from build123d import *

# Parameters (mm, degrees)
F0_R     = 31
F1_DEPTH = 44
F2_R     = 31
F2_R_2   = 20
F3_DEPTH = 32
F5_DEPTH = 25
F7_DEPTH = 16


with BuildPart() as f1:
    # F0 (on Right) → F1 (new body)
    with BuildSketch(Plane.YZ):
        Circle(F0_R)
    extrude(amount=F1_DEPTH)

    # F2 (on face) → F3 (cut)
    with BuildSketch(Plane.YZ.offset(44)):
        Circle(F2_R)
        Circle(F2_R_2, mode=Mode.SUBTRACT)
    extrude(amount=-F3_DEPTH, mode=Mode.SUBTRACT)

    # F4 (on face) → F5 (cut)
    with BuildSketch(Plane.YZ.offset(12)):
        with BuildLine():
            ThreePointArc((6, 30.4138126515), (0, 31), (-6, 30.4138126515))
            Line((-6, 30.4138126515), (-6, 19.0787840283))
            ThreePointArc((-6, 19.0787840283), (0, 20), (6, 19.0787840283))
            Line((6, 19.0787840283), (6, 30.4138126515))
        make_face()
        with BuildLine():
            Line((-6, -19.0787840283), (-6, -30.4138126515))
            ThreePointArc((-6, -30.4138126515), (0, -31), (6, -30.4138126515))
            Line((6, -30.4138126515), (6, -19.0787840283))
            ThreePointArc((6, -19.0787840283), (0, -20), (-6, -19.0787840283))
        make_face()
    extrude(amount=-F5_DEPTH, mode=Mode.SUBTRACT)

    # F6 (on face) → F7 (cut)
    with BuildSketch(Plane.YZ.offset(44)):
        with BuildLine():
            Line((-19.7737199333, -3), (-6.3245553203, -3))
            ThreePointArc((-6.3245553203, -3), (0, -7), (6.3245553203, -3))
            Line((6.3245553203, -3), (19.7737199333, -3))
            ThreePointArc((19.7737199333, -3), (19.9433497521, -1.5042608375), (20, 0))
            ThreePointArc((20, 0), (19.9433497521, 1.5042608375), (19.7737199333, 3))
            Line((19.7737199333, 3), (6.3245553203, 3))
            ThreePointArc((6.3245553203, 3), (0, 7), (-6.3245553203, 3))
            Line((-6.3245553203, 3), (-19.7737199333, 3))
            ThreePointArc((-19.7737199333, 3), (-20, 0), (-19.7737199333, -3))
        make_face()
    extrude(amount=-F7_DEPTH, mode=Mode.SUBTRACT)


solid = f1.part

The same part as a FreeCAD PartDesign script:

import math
import FreeCAD as App
import Part
import Sketcher

V = App.Vector
Q = App.Units.Quantity

doc = App.newDocument("Part")
params = doc.addObject("Spreadsheet::Sheet", "Params")
for row, (alias, value) in enumerate([
    ("sketch1_diameter", "62 mm"),
    ("pad1_length", "44 mm"),
    ("sketch2_diameter", "62 mm"),
    ("sketch2_diameter2", "40 mm"),
    ("pocket1_length", "32 mm"),
    ("sketch3_radius", "31 mm"),
    ("sketch3_radius2", "20 mm"),
    ("pocket2_length", "25 mm"),
    ("sketch4_radius", "7 mm"),
    ("sketch4_radius2", "20 mm"),
    ("pocket3_length", "16 mm"),
], start=1):
    params.set(f"A{row}", alias)
    params.set(f"B{row}", "=" + value)
    params.setAlias(f"B{row}", alias)

body = doc.addObject("PartDesign::Body", "Body")

# Sketch on YZ plane
sketch1 = doc.addObject("Sketcher::SketchObject", "Sketch")
body.addObject(sketch1)
sketch1.AttachmentSupport = (doc.YZ_Plane, [""])
sketch1.MapMode = "FlatFace"
sketch1.addGeometry(Part.Circle(V(0, 0, 0), V(0, 0, 1), 31), False)
sketch1.addConstraint([
    Sketcher.Constraint("Coincident", 0, 3, -1, 1),
    Sketcher.Constraint("Diameter", 0, Q("62 mm")),
])
sketch1.setExpression("Constraints[1]", "Params.sketch1_diameter")
pad1 = doc.addObject("PartDesign::Pad", "Pad")
body.addObject(pad1)
pad1.Profile = sketch1
pad1.setExpression("Length", "Params.pad1_length")

# Sketch on YZ plane
sketch2 = doc.addObject("Sketcher::SketchObject", "Sketch001")
body.addObject(sketch2)
sketch2.AttachmentSupport = (doc.YZ_Plane, [""])
sketch2.MapMode = "FlatFace"
sketch2.AttachmentOffset = App.Placement(V(0, 0, 44), App.Rotation())
sketch2.addGeometry([
    Part.Circle(V(0, 0, 0), V(0, 0, 1), 31),
    Part.Circle(V(0, 0, 0), V(0, 0, 1), 20),
], False)
sketch2.addConstraint([
    Sketcher.Constraint("Coincident", 0, 3, -1, 1),
    Sketcher.Constraint("Coincident", 1, 3, -1, 1),
    Sketcher.Constraint("Diameter", 0, Q("62 mm")),
    Sketcher.Constraint("Diameter", 1, Q("40 mm")),
])
sketch2.setExpression("Constraints[2]", "Params.sketch2_diameter")
sketch2.setExpression("Constraints[3]", "Params.sketch2_diameter2")
pocket1 = doc.addObject("PartDesign::Pocket", "Pocket")
body.addObject(pocket1)
pocket1.Profile = sketch2
pocket1.setExpression("Length", "Params.pocket1_length")

# Sketch on YZ plane
sketch3 = doc.addObject("Sketcher::SketchObject", "Sketch002")
body.addObject(sketch3)
sketch3.AttachmentSupport = (doc.YZ_Plane, [""])
sketch3.MapMode = "FlatFace"
sketch3.AttachmentOffset = App.Placement(V(0, 0, 12), App.Rotation())
sketch3.addGeometry([
    Part.ArcOfCircle(Part.Circle(V(0, 0, 0), V(0, 0, 1), 31), math.radians(79), math.radians(101)),  # 0
    Part.LineSegment(V(-6, 30, 0), V(-6, 19, 0)),  # 1
    Part.ArcOfCircle(Part.Circle(V(0, 0, 0), V(0, 0, 1), 20), math.radians(73), math.radians(107)),  # 2
    Part.LineSegment(V(6, 19, 0), V(6, 30, 0)),  # 3
    Part.LineSegment(V(-6, -19, 0), V(-6, -30, 0)),  # 4
    Part.ArcOfCircle(Part.Circle(V(0, 0, 0), V(0, 0, 1), 31), math.radians(-101), math.radians(-79)),  # 5
    Part.LineSegment(V(6, -30, 0), V(6, -19, 0)),  # 6
    Part.ArcOfCircle(Part.Circle(V(0, 0, 0), V(0, 0, 1), 20), math.radians(-107), math.radians(-73)),  # 7
], False)
sketch3.addConstraint([
    Sketcher.Constraint("Coincident", 0, 2, 1, 1),
    Sketcher.Constraint("Coincident", 1, 2, 2, 2),
    Sketcher.Constraint("Coincident", 2, 1, 3, 1),
    Sketcher.Constraint("Coincident", 3, 2, 0, 1),
    Sketcher.Constraint("Coincident", 4, 2, 5, 1),
    Sketcher.Constraint("Coincident", 5, 2, 6, 1),
    Sketcher.Constraint("Coincident", 6, 2, 7, 2),
    Sketcher.Constraint("Coincident", 7, 1, 4, 1),
    Sketcher.Constraint("Vertical", 1),
    Sketcher.Constraint("Vertical", 3),
    Sketcher.Constraint("Vertical", 4),
    Sketcher.Constraint("Vertical", 6),
    Sketcher.Constraint("Coincident", 0, 3, -1, 1),
    Sketcher.Constraint("Coincident", 2, 3, -1, 1),
    Sketcher.Constraint("Coincident", 5, 3, -1, 1),
    Sketcher.Constraint("Coincident", 7, 3, -1, 1),
    Sketcher.Constraint("Equal", 0, 5),
    Sketcher.Constraint("Equal", 2, 7),
    Sketcher.Constraint("Horizontal", 1, 2, 2, 1),
    Sketcher.Constraint("Horizontal", 4, 2, 5, 2),
    Sketcher.Constraint("Vertical", 1, 2, 4, 2),
    Sketcher.Constraint("Radius", 0, Q("31 mm")),
    Sketcher.Constraint("Radius", 2, Q("20 mm")),
    Sketcher.Constraint("DistanceX", 0, 2, -1, 1, Q("6 mm")),
])
sketch3.setExpression("Constraints[21]", "Params.sketch3_radius")
sketch3.setExpression("Constraints[22]", "Params.sketch3_radius2")
pocket2 = doc.addObject("PartDesign::Pocket", "Pocket001")
body.addObject(pocket2)
pocket2.Profile = sketch3
pocket2.setExpression("Length", "Params.pocket2_length")

# Sketch on YZ plane
sketch4 = doc.addObject("Sketcher::SketchObject", "Sketch003")
body.addObject(sketch4)
sketch4.AttachmentSupport = (doc.YZ_Plane, [""])
sketch4.MapMode = "FlatFace"
sketch4.AttachmentOffset = App.Placement(V(0, 0, 44), App.Rotation())
sketch4.addGeometry([
    Part.LineSegment(V(-19.8, -3, 0), V(-6.3, -3, 0)),  # 0
    Part.ArcOfCircle(Part.Circle(V(0, 0, 0), V(0, 0, 1), 7), math.radians(-155), math.radians(-25)),  # 1
    Part.LineSegment(V(6.3, -3, 0), V(19.8, -3, 0)),  # 2
    Part.ArcOfCircle(Part.Circle(V(0, 0, 0), V(0, 0, 1), 20), math.radians(-8.63), math.radians(0)),  # 3
    Part.ArcOfCircle(Part.Circle(V(0, 0, 0), V(0, 0, 1), 20), math.radians(0), math.radians(8.63)),  # 4
    Part.LineSegment(V(19.8, 3, 0), V(6.3, 3, 0)),  # 5
    Part.ArcOfCircle(Part.Circle(V(0, 0, 0), V(0, 0, 1), 7), math.radians(25), math.radians(155)),  # 6
    Part.LineSegment(V(-6.3, 3, 0), V(-19.8, 3, 0)),  # 7
    Part.ArcOfCircle(Part.Circle(V(0, 0, 0), V(0, 0, 1), 20), math.radians(171.37), math.radians(188.63)),  # 8
], False)
sketch4.addConstraint([
    Sketcher.Constraint("Coincident", 0, 2, 1, 1),
    Sketcher.Constraint("Coincident", 1, 2, 2, 1),
    Sketcher.Constraint("Coincident", 2, 2, 3, 1),
    Sketcher.Constraint("Tangent", 3, 2, 4, 1),
    Sketcher.Constraint("Coincident", 4, 2, 5, 1),
    Sketcher.Constraint("Coincident", 5, 2, 6, 1),
    Sketcher.Constraint("Coincident", 6, 2, 7, 1),
    Sketcher.Constraint("Coincident", 7, 2, 8, 1),
    Sketcher.Constraint("Coincident", 8, 2, 0, 1),
    Sketcher.Constraint("Horizontal", 0),
    Sketcher.Constraint("Horizontal", 2),
    Sketcher.Constraint("Horizontal", 5),
    Sketcher.Constraint("Horizontal", 7),
    Sketcher.Constraint("Coincident", 1, 3, -1, 1),
    Sketcher.Constraint("Coincident", 3, 3, -1, 1),
    Sketcher.Constraint("Coincident", 6, 3, -1, 1),
    Sketcher.Constraint("Coincident", 8, 3, -1, 1),
    Sketcher.Constraint("Equal", 3, 4),
    Sketcher.Constraint("Equal", 1, 6),
    Sketcher.Constraint("Equal", 4, 8),
    Sketcher.Constraint("PointOnObject", 3, 2, -1),
    Sketcher.Constraint("Horizontal", 0, 2, 1, 2),
    Sketcher.Constraint("Horizontal", 5, 2, 6, 2),
    Sketcher.Constraint("Vertical", 2, 2, 4, 2),
    Sketcher.Constraint("Radius", 1, Q("7 mm")),
    Sketcher.Constraint("Radius", 3, Q("20 mm")),
    Sketcher.Constraint("DistanceY", 0, 2, -1, 1, Q("3 mm")),
])
sketch4.setExpression("Constraints[24]", "Params.sketch4_radius")
sketch4.setExpression("Constraints[25]", "Params.sketch4_radius2")
pocket3 = doc.addObject("PartDesign::Pocket", "Pocket002")
body.addObject(pocket3)
pocket3.Profile = sketch4
pocket3.setExpression("Length", "Params.pocket3_length")

doc.recompute()
